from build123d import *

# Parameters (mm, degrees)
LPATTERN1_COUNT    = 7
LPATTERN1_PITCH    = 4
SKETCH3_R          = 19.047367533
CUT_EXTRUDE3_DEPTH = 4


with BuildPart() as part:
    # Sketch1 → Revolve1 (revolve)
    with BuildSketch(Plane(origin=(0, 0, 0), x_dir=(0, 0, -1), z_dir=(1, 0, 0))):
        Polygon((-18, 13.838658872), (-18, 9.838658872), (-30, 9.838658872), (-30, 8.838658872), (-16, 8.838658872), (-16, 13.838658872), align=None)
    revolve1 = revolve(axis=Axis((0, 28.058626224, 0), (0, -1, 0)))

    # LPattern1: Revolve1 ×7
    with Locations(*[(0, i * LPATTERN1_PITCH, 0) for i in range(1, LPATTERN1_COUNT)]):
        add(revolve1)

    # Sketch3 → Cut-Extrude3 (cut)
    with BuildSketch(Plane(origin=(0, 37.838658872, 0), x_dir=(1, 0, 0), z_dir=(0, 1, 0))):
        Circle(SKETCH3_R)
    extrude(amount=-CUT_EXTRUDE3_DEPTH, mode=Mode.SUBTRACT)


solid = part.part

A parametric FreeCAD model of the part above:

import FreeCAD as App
import Part
import Sketcher
Q = App.Units.Quantity


def add_polygon(sketch, points):
    """Adds a closed chain of lines whose ends are joined by coincident constraints."""
    first, n = sketch.GeometryCount, len(points)
    for a, b in zip(points, points[1:] + points[:1]):
        sketch.addGeometry(Part.LineSegment(App.Vector(*a, 0), App.Vector(*b, 0)), False)
    for i in range(n):
        sketch.addConstraint(Sketcher.Constraint("Coincident", first + i, 2, first + (i + 1) % n, 1))

doc = App.newDocument("Part")
body = doc.addObject("PartDesign::Body", "Body")

# Sketch on YZ plane
sketch1 = doc.addObject("Sketcher::SketchObject", "Sketch")
body.addObject(sketch1)
sketch1.AttachmentSupport = (doc.YZ_Plane, [""])
sketch1.MapMode = "FlatFace"
add_polygon(sketch1, [(13.8, 18), (9.8, 18), (9.8, 30), (8.8, 30), (8.8, 16), (13.8, 16)])  # lines 0-5
sketch1.addConstraint([
    Sketcher.Constraint("Horizontal", 0),
    Sketcher.Constraint("Vertical", 1),
    Sketcher.Constraint("Horizontal", 2),
    Sketcher.Constraint("Vertical", 3),
    Sketcher.Constraint("Horizontal", 4),
    Sketcher.Constraint("Vertical", 5),
    Sketcher.Constraint("DistanceX", 0, 2, 0, 1, Q("4 mm")),
    Sketcher.Constraint("DistanceX", 2, 2, 2, 1, Q("1 mm")),
    Sketcher.Constraint("DistanceY", 1, 1, 1, 2, Q("12 mm")),
    Sketcher.Constraint("DistanceY", 3, 2, 3, 1, Q("14 mm")),
    Sketcher.Constraint("DistanceY", -1, 1, 0, 2, Q("18 mm")),
    Sketcher.Constraint("DistanceX", -1, 1, 0, 2, Q("9.838659 mm")),
])
revolution = doc.addObject("PartDesign::Revolution", "Revolution")
body.addObject(revolution)
revolution.Profile = sketch1
revolution.ReferenceAxis = (sketch1, ["H_Axis"])
revolution.Angle = 360
doc.recompute()

linearpattern = doc.addObject("PartDesign::LinearPattern", "LinearPattern")
body.addObject(linearpattern)
linearpattern.Originals = [revolution]
linearpattern.Direction = (doc.Y_Axis, [""])
linearpattern.Mode = "offset"
linearpattern.Offset = 4
linearpattern.Occurrences = 7
body.Tip = linearpattern

# Sketch on XZ plane
sketch2 = doc.addObject("Sketcher::SketchObject", "Sketch001")
body.addObject(sketch2)
sketch2.AttachmentSupport = (doc.XZ_Plane, [""])
sketch2.MapMode = "FlatFace"
sketch2.AttachmentOffset = App.Placement(App.Vector(0, 0, -37.838659), App.Rotation())
sketch2.addGeometry(Part.Circle(App.Vector(0, 0, 0), App.Vector(0, 0, 1), 19), False)
sketch2.addConstraint([
    Sketcher.Constraint("Coincident", 0, 3, -1, 1),
    Sketcher.Constraint("Diameter", 0, Q("38.094735 mm")),
])
pocket1 = doc.addObject("PartDesign::Pocket", "Pocket")
body.addObject(pocket1)
pocket1.Profile = sketch2
pocket1.Length = 4
pocket1.Reversed = True

doc.recompute()
